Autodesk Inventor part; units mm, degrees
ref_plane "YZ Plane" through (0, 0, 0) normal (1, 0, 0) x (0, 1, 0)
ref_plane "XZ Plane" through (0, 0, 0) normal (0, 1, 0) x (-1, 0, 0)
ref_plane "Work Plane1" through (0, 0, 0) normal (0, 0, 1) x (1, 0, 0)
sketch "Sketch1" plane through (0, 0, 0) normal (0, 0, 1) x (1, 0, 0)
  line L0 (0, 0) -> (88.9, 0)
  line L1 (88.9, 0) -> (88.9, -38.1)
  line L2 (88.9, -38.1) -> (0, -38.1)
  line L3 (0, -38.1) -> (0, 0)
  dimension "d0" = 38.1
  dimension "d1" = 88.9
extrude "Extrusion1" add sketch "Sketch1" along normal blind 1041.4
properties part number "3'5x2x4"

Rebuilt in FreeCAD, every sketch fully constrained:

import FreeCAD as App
import Part
import Sketcher

V = App.Vector
Q = App.Units.Quantity

doc = App.newDocument("Part")
body = doc.addObject("PartDesign::Body", "Body")

# Sketch on XY plane
sketch1 = body.newObject("Sketcher::SketchObject", "Sketch")
sketch1.AttachmentSupport = (doc.getObject("XY_Plane"), [""])
sketch1.MapMode = "FlatFace"
sketch1.addGeometry([
    Part.LineSegment(V(89, 0, 0), V(0, 0, 0)),
    Part.LineSegment(V(0, 0, 0), V(0, -38, 0)),
    Part.LineSegment(V(0, -38, 0), V(89, -38, 0)),
    Part.LineSegment(V(89, -38, 0), V(89, 0, 0)),
], False)
sketch1.addConstraint([
    Sketcher.Constraint("Coincident", 0, 2, 1, 1),
    Sketcher.Constraint("Coincident", 1, 2, 2, 1),
    Sketcher.Constraint("Coincident", 2, 2, 3, 1),
    Sketcher.Constraint("Coincident", 3, 2, 0, 1),
    Sketcher.Constraint("Horizontal", 0),
    Sketcher.Constraint("Vertical", 1),
    Sketcher.Constraint("Horizontal", 2),
    Sketcher.Constraint("Vertical", 3),
    Sketcher.Constraint("Coincident", 0, 2, -1, 1),
    Sketcher.Constraint("DistanceX", 0, 2, 0, 1, Q("3.5 in")),
    Sketcher.Constraint("DistanceY", 1, 2, 1, 1, Q("1.5 in")),
])
pad1 = body.newObject("PartDesign::Pad", "Pad")
pad1.Profile = sketch1
pad1.Length = Q("41 in")

doc.recompute()
